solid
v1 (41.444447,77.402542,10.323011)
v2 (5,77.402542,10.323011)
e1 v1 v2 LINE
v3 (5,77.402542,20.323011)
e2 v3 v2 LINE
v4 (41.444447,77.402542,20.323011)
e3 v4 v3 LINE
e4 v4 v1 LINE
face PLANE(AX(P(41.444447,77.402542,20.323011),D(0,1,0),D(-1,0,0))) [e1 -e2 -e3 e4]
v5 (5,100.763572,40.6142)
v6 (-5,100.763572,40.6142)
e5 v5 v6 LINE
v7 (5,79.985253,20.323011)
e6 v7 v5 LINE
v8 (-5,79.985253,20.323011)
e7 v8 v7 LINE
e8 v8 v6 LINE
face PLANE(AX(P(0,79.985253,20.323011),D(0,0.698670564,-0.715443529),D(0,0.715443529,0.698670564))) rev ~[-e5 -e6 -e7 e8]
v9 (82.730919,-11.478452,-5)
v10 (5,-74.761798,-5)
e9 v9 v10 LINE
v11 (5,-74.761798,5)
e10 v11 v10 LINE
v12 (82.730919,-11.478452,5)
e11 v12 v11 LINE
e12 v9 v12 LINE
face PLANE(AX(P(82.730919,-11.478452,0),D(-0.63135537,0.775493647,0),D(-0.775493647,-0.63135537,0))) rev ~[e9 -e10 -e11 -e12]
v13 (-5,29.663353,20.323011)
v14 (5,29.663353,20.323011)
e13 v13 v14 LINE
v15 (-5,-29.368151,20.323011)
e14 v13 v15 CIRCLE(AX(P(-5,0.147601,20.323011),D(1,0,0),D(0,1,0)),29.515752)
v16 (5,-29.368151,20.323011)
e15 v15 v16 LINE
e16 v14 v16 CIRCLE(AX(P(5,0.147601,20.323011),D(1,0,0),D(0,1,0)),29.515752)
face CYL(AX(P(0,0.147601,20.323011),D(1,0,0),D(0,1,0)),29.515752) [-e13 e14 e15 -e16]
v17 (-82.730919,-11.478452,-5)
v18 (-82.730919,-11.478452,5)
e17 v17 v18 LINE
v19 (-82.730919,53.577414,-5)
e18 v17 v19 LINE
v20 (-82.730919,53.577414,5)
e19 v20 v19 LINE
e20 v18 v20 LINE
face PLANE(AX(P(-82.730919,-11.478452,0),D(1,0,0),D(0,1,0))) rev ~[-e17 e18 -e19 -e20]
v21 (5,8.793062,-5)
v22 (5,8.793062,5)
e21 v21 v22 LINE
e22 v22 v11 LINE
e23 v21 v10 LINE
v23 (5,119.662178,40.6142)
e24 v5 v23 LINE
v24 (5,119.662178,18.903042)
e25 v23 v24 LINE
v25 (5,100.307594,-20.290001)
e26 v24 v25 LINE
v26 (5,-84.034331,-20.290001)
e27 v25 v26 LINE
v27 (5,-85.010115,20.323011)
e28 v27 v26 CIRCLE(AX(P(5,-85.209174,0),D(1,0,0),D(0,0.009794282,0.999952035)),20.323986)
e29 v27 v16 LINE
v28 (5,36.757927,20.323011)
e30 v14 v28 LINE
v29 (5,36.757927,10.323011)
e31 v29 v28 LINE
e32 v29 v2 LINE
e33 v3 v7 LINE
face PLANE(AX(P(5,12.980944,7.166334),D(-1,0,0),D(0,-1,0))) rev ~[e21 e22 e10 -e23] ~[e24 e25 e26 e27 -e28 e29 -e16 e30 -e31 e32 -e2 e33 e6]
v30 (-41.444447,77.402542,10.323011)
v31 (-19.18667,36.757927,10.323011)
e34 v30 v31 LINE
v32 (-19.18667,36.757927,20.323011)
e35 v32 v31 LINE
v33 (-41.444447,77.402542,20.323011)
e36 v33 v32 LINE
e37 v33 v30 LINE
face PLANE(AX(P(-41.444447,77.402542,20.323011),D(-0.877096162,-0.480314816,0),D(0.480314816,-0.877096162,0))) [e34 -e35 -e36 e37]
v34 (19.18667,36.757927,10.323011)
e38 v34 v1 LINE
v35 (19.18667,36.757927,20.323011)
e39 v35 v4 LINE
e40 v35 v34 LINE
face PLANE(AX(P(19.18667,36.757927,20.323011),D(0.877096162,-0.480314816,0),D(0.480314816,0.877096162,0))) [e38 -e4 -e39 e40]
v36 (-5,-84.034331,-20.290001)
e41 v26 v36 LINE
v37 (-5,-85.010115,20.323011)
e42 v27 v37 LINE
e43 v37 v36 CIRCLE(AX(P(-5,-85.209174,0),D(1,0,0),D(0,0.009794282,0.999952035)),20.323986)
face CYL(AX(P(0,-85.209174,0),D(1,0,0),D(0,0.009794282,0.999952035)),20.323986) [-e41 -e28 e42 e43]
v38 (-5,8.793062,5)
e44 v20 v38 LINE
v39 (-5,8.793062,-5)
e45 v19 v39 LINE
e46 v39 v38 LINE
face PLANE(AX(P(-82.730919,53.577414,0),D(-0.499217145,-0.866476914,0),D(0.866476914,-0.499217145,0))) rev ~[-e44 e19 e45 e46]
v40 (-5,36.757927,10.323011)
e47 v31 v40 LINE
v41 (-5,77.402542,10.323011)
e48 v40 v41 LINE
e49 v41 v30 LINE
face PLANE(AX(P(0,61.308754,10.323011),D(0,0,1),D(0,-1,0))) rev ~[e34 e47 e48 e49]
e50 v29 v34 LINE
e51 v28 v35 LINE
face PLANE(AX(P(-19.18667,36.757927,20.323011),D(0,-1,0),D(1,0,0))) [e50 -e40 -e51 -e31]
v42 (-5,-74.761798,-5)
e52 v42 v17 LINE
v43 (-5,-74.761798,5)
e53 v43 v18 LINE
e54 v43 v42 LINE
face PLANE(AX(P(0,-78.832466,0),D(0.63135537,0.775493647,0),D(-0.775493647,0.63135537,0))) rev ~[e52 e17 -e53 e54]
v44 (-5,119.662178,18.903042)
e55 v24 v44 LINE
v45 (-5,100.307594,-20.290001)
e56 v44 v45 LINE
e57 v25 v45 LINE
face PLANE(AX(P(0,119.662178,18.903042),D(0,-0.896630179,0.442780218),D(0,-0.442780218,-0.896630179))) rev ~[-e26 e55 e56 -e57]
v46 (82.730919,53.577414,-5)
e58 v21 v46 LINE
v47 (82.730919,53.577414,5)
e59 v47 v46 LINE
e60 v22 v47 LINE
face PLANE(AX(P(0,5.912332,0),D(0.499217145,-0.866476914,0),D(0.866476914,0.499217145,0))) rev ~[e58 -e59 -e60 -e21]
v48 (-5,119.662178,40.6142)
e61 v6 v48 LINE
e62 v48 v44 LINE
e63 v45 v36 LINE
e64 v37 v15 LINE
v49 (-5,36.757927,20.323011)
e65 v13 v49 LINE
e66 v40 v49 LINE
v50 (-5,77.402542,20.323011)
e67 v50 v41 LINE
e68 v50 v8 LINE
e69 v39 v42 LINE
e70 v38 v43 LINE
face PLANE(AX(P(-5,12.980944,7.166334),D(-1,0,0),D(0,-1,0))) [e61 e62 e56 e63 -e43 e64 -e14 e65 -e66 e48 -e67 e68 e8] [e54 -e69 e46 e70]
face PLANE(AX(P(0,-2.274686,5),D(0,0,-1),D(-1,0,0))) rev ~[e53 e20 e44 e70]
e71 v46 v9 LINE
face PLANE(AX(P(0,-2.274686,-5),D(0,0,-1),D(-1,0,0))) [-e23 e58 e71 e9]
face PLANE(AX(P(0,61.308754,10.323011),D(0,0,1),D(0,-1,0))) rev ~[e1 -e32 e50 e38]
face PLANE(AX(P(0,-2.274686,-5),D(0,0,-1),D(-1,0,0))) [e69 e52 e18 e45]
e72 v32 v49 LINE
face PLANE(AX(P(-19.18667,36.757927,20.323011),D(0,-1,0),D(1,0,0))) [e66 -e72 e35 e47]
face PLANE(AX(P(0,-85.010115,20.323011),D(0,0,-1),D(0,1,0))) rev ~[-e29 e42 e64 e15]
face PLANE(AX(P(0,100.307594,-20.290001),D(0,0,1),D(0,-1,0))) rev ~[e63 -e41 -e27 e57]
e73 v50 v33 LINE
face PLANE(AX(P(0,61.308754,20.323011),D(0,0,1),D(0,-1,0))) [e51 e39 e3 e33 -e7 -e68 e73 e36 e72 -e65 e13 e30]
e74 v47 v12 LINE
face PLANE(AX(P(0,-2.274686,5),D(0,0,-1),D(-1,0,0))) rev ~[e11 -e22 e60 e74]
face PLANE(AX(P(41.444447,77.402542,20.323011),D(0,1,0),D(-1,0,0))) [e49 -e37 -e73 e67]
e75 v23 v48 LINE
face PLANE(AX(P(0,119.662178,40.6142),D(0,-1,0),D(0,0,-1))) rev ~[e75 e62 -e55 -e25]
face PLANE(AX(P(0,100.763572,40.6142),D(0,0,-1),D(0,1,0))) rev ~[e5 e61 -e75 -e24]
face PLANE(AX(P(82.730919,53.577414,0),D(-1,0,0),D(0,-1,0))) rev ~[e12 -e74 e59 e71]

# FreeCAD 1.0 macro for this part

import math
import FreeCAD as App
import Part
import Sketcher


def add_polygon(sketch, points):
    """Adds a closed chain of lines whose ends are joined by coincident constraints."""
    first, n = sketch.GeometryCount, len(points)
    for a, b in zip(points, points[1:] + points[:1]):
        sketch.addGeometry(Part.LineSegment(App.Vector(*a, 0), App.Vector(*b, 0)), False)
    for i in range(n):
        sketch.addConstraint(Sketcher.Constraint("Coincident", first + i, 2, first + (i + 1) % n, 1))

doc = App.newDocument("Part")
params = doc.addObject("Spreadsheet::Sheet", "Params")
for row, (alias, value) in enumerate([
    ("pad1_length", "10 mm"),
    ("pad2_length", "10 mm"),
    ("pad3_length", "10 mm"),
], start=1):
    params.set(f"A{row}", alias)
    params.set(f"B{row}", "=" + value)
    params.setAlias(f"B{row}", alias)

body = doc.addObject("PartDesign::Body", "Body")

# Sketch on YZ plane
sketch1 = doc.addObject("Sketcher::SketchObject", "Sketch")
body.addObject(sketch1)
sketch1.AttachmentSupport = (doc.YZ_Plane, [""])
sketch1.MapMode = "FlatFace"
sketch1.addGeometry([
    Part.LineSegment(App.Vector(100.763572, 40.6142, 0), App.Vector(79.985253, 20.323011, 0)),  # 0
    Part.LineSegment(App.Vector(79.985253, 20.323011, 0), App.Vector(29.663353, 20.323011, 0)),  # 1
    Part.ArcOfCircle(Part.Circle(App.Vector(0.147601, 20.323011, 0), App.Vector(0, 0, 1), 29.515752), math.radians(0), math.radians(180)),  # 2
    Part.LineSegment(App.Vector(-29.368151, 20.323011, 0), App.Vector(-85.010115, 20.323011, 0)),  # 3
    Part.ArcOfCircle(Part.Circle(App.Vector(-85.209174, 0, 0), App.Vector(0, 0, 1), 20.323986), math.radians(89.43882), math.radians(273.313872)),  # 4
    Part.LineSegment(App.Vector(-84.034331, -20.290001, 0), App.Vector(100.307594, -20.290001, 0)),  # 5
    Part.LineSegment(App.Vector(100.307594, -20.290001, 0), App.Vector(119.662178, 18.903042, 0)),  # 6
    Part.LineSegment(App.Vector(119.662178, 18.903042, 0), App.Vector(119.662178, 40.6142, 0)),  # 7
    Part.LineSegment(App.Vector(119.662178, 40.6142, 0), App.Vector(100.763572, 40.6142, 0)),  # 8
], False)
sketch1.addConstraint([
    Sketcher.Constraint("Coincident", 0, 2, 1, 1),
    Sketcher.Constraint("Coincident", 1, 2, 2, 1),
    Sketcher.Constraint("Coincident", 2, 2, 3, 1),
    Sketcher.Constraint("Coincident", 3, 2, 4, 1),
    Sketcher.Constraint("Coincident", 4, 2, 5, 1),
    Sketcher.Constraint("Coincident", 5, 2, 6, 1),
    Sketcher.Constraint("Coincident", 6, 2, 7, 1),
    Sketcher.Constraint("Coincident", 7, 2, 8, 1),
    Sketcher.Constraint("Coincident", 8, 2, 0, 1),
    Sketcher.Constraint("Horizontal", 1),
    Sketcher.Constraint("Horizontal", 3),
    Sketcher.Constraint("Horizontal", 5),
    Sketcher.Constraint("Vertical", 7),
    Sketcher.Constraint("Horizontal", 8),
    Sketcher.Constraint("PointOnObject", 4, 3, -1),
    Sketcher.Constraint("Horizontal", 2, 3, 0, 2),
    Sketcher.Constraint("Horizontal", 1, 2, 2, 2),
    Sketcher.Constraint("DistanceY", 4, 2, -1, 1, 20.290001),
    Sketcher.Constraint("Radius", 2, 29.515752),
    Sketcher.Constraint("DistanceX", 1, 2, 1, 1, 50.3219),
    Sketcher.Constraint("Radius", 4, 20.323986),
    Sketcher.Constraint("DistanceX", -1, 1, 2, 3, 0.147601),
    Sketcher.Constraint("DistanceY", -1, 1, 7, 2, 40.6142),
    Sketcher.Constraint("Distance", 0, 29.04257),
    Sketcher.Constraint("DistanceX", 3, 2, 3, 1, 55.641964),
    Sketcher.Constraint("DistanceX", 5, 1, 5, 2, 184.341925),
    Sketcher.Constraint("DistanceX", 8, 2, 8, 1, 18.898606),
    Sketcher.Constraint("DistanceY", 7, 1, 7, 2, 21.711158),
    Sketcher.Constraint("DistanceY", -1, 1, 2, 3, 20.323011),
])
pad1 = doc.addObject("PartDesign::Pad", "Pad")
body.addObject(pad1)
pad1.Profile = sketch1
pad1.setExpression("Length", "Params.pad1_length")
pad1.Midplane = True

# Sketch on XY plane
sketch2 = doc.addObject("Sketcher::SketchObject", "Sketch001")
body.addObject(sketch2)
sketch2.AttachmentSupport = (doc.XY_Plane, [""])
sketch2.MapMode = "FlatFace"
add_polygon(sketch2, [(-82.730919, 53.577414), (-82.730919, -11.478452), (0, -78.832466), (82.730919, -11.478452), (82.730919, 53.577414), (0, 5.912332)])  # lines 0-5
sketch2.addConstraint([
    Sketcher.Constraint("Vertical", 0),
    Sketcher.Constraint("Vertical", 3),
    Sketcher.Constraint("Symmetric", 0, 2, 2, 2, -2),
    Sketcher.Constraint("PointOnObject", 1, 2, -2),
    Sketcher.Constraint("PointOnObject", 4, 2, -2),
    Sketcher.Constraint("Horizontal", 3, 2, 5, 2),
    Sketcher.Constraint("DistanceY", 1, 2, 4, 2, 84.744798),
    Sketcher.Constraint("Distance", 1, 106.681621),
    Sketcher.Constraint("DistanceY", 0, 2, 0, 1, 65.055866),
    Sketcher.Constraint("DistanceX", 0, 2, -1, 1, 82.730919),
    Sketcher.Constraint("DistanceY", 0, 2, -1, 1, 11.478452),
])
pad2 = doc.addObject("PartDesign::Pad", "Pad001")
body.addObject(pad2)
pad2.Profile = sketch2
pad2.setExpression("Length", "Params.pad2_length")
pad2.Midplane = True

# Sketch on XY plane
sketch3 = doc.addObject("Sketcher::SketchObject", "Sketch002")
body.addObject(sketch3)
sketch3.AttachmentSupport = (doc.XY_Plane, [""])
sketch3.MapMode = "FlatFace"
sketch3.AttachmentOffset = App.Placement(App.Vector(0, 0, 20.323011), App.Rotation())
add_polygon(sketch3, [(41.444447, 77.402542), (-41.444447, 77.402542), (-19.18667, 36.757927), (19.18667, 36.757927)])  # lines 0-3
sketch3.addConstraint([
    Sketcher.Constraint("Horizontal", 0),
    Sketcher.Constraint("Horizontal", 2),
    Sketcher.Constraint("Equal", 1, 3),
    Sketcher.Constraint("DistanceX", 2, 1, 2, 2, 38.37334),
    Sketcher.Constraint("DistanceX", 0, 2, 0, 1, 82.888894),
    Sketcher.Constraint("DistanceY", -1, 1, 0, 2, 77.402542),
    Sketcher.Constraint("DistanceX", 1, 2, -1, 1, 19.18667),
    Sketcher.Constraint("Distance", 1, 46.339976),
])
pad3 = doc.addObject("PartDesign::Pad", "Pad002")
body.addObject(pad3)
pad3.Profile = sketch3
pad3.setExpression("Length", "Params.pad3_length")
pad3.Reversed = True

doc.recompute()
